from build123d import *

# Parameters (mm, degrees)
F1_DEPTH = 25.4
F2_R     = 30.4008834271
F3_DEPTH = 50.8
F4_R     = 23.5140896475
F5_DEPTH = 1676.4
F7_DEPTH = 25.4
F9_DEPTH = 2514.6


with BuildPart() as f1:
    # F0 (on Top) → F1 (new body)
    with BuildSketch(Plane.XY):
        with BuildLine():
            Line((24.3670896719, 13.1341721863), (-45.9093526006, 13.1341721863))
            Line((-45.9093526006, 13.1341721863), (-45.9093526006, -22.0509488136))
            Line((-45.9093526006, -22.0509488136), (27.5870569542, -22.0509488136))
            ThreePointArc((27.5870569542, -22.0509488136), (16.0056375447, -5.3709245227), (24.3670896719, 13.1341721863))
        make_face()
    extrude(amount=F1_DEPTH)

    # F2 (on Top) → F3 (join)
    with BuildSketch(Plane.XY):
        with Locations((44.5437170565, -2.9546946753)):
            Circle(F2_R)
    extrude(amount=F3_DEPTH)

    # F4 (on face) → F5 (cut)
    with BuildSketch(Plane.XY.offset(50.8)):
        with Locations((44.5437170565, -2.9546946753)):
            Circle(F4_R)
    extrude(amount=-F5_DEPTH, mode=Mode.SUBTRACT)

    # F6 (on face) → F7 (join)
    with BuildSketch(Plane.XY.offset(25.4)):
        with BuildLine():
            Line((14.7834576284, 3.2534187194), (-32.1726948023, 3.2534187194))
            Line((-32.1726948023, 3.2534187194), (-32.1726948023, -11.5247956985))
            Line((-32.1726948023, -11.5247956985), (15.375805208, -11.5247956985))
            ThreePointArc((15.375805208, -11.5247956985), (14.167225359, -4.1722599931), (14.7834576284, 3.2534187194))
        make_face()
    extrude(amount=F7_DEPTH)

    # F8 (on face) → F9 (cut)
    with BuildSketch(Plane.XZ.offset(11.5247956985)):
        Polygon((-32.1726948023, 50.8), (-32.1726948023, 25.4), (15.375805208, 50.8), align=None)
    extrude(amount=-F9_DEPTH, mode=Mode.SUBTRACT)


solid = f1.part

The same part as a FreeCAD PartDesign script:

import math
import FreeCAD as App
import Part
import Sketcher

V = App.Vector
Q = App.Units.Quantity

doc = App.newDocument("Part")
params = doc.addObject("Spreadsheet::Sheet", "Params")
for row, (alias, value) in enumerate([
    ("pad1_length", "1 in"),
    ("pad2_length", "2 in"),
    ("pocket1_length", "66 in"),
    ("pad3_length", "1 in"),
    ("sketch5_height", "1 in"),
    ("pocket2_length", "99 in"),
], start=1):
    params.set(f"A{row}", alias)
    params.set(f"B{row}", "=" + value)
    params.setAlias(f"B{row}", alias)

body = doc.addObject("PartDesign::Body", "Body")

# Sketch on XY plane
sketch1 = body.newObject("Sketcher::SketchObject", "Sketch")
sketch1.AttachmentSupport = (doc.getObject("XY_Plane"), [""])
sketch1.MapMode = "FlatFace"
sketch1.addGeometry(Part.LineSegment(V(24, 13, 0), V(-46, 13, 0)), False)
sketch1.addGeometry(Part.LineSegment(V(-46, 13, 0), V(-46, -22, 0)), False)
sketch1.addGeometry(Part.LineSegment(V(-46, -22, 0), V(28, -22, 0)), False)
sketch1.addGeometry(Part.ArcOfCircle(Part.Circle(V(37, -3, 0), V(0, 0, 1), 21), math.radians(126), math.radians(244)), False)
sketch1.addConstraint(Sketcher.Constraint("Coincident", 0, 2, 1, 1))
sketch1.addConstraint(Sketcher.Constraint("Coincident", 1, 2, 2, 1))
sketch1.addConstraint(Sketcher.Constraint("Coincident", 2, 2, 3, 2))
sketch1.addConstraint(Sketcher.Constraint("Coincident", 3, 1, 0, 1))
sketch1.addConstraint(Sketcher.Constraint("Horizontal", 0))
sketch1.addConstraint(Sketcher.Constraint("Vertical", 1))
sketch1.addConstraint(Sketcher.Constraint("Horizontal", 2))
sketch1.addConstraint(Sketcher.Constraint("Radius", 3, Q("20.590642 mm")))
sketch1.addConstraint(Sketcher.Constraint("DistanceX", 2, 1, 2, 2, Q("73.49641 mm")))
sketch1.addConstraint(Sketcher.Constraint("DistanceY", 1, 2, 1, 1, Q("35.185121 mm")))
sketch1.addConstraint(Sketcher.Constraint("DistanceX", 0, 2, 0, 1, Q("70.276442 mm")))
sketch1.addConstraint(Sketcher.Constraint("DistanceY", 1, 2, -1, 1, Q("22.050949 mm")))
sketch1.addConstraint(Sketcher.Constraint("DistanceX", -1, 1, 3, 1, Q("24.36709 mm")))
pad1 = body.newObject("PartDesign::Pad", "Pad")
pad1.Profile = sketch1
pad1.setExpression("Length", "Params.pad1_length")

# Sketch on XY plane
sketch2 = body.newObject("Sketcher::SketchObject", "Sketch001")
sketch2.AttachmentSupport = (doc.getObject("XY_Plane"), [""])
sketch2.MapMode = "FlatFace"
sketch2.addGeometry(Part.Circle(V(45, -3, 0), V(0, 0, 1), 30), False)
sketch2.addConstraint(Sketcher.Constraint("Diameter", 0, Q("60.801767 mm")))
sketch2.addConstraint(Sketcher.Constraint("DistanceX", -1, 1, 0, 3, Q("44.543717 mm")))
sketch2.addConstraint(Sketcher.Constraint("DistanceY", 0, 3, -1, 1, Q("2.954695 mm")))
pad2 = body.newObject("PartDesign::Pad", "Pad001")
pad2.Profile = sketch2
pad2.setExpression("Length", "Params.pad2_length")

# Sketch on XY plane
sketch3 = body.newObject("Sketcher::SketchObject", "Sketch002")
sketch3.AttachmentSupport = (doc.getObject("XY_Plane"), [""])
sketch3.MapMode = "FlatFace"
sketch3.AttachmentOffset = App.Placement(V(0, 0, 2 * 25.4), App.Rotation())
sketch3.addGeometry(Part.Circle(V(45, -3, 0), V(0, 0, 1), 24), False)
sketch3.addConstraint(Sketcher.Constraint("Diameter", 0, Q("47.028179 mm")))
sketch3.addConstraint(Sketcher.Constraint("DistanceX", -1, 1, 0, 3, Q("44.543717 mm")))
sketch3.addConstraint(Sketcher.Constraint("DistanceY", 0, 3, -1, 1, Q("2.954695 mm")))
pocket1 = body.newObject("PartDesign::Pocket", "Pocket")
pocket1.Profile = sketch3
pocket1.setExpression("Length", "Params.pocket1_length")

# Sketch on XY plane
sketch4 = body.newObject("Sketcher::SketchObject", "Sketch003")
sketch4.AttachmentSupport = (doc.getObject("XY_Plane"), [""])
sketch4.MapMode = "FlatFace"
sketch4.AttachmentOffset = App.Placement(V(0, 0, 1 * 25.4), App.Rotation())
sketch4.addGeometry(Part.LineSegment(V(15, 3, 0), V(-32, 3, 0)), False)
sketch4.addGeometry(Part.LineSegment(V(-32, 3, 0), V(-32, -12, 0)), False)
sketch4.addGeometry(Part.LineSegment(V(-32, -12, 0), V(15, -12, 0)), False)
sketch4.addGeometry(Part.ArcOfCircle(Part.Circle(V(45, -3, 0), V(0, 0, 1), 30), math.radians(168), math.radians(196)), False)
sketch4.addConstraint(Sketcher.Constraint("Coincident", 0, 2, 1, 1))
sketch4.addConstraint(Sketcher.Constraint("Coincident", 1, 2, 2, 1))
sketch4.addConstraint(Sketcher.Constraint("Coincident", 2, 2, 3, 2))
sketch4.addConstraint(Sketcher.Constraint("Coincident", 3, 1, 0, 1))
sketch4.addConstraint(Sketcher.Constraint("Horizontal", 0))
sketch4.addConstraint(Sketcher.Constraint("Vertical", 1))
sketch4.addConstraint(Sketcher.Constraint("Horizontal", 2))
sketch4.addConstraint(Sketcher.Constraint("DistanceX", 2, 1, 2, 2, Q("47.5485 mm")))
sketch4.addConstraint(Sketcher.Constraint("Radius", 3, Q("30.400883 mm")))
sketch4.addConstraint(Sketcher.Constraint("DistanceY", 1, 2, 3, 3, Q("8.570101 mm")))
sketch4.addConstraint(Sketcher.Constraint("DistanceX", 0, 2, 0, 1, Q("46.956152 mm")))
sketch4.addConstraint(Sketcher.Constraint("DistanceY", -1, 1, 0, 2, Q("3.253419 mm")))
sketch4.addConstraint(Sketcher.Constraint("DistanceX", -1, 1, 3, 3, Q("44.543717 mm")))
pad3 = body.newObject("PartDesign::Pad", "Pad002")
pad3.Profile = sketch4
pad3.setExpression("Length", "Params.pad3_length")

# Sketch on XZ plane
sketch5 = body.newObject("Sketcher::SketchObject", "Sketch004")
sketch5.AttachmentSupport = (doc.getObject("XZ_Plane"), [""])
sketch5.MapMode = "FlatFace"
sketch5.AttachmentOffset = App.Placement(V(0, 0, 11.524796), App.Rotation())
sketch5.addGeometry(Part.LineSegment(V(-32, 51, 0), V(-32, 25, 0)), False)
sketch5.addGeometry(Part.LineSegment(V(-32, 25, 0), V(15, 51, 0)), False)
sketch5.addGeometry(Part.LineSegment(V(15, 51, 0), V(-32, 51, 0)), False)
sketch5.addConstraint(Sketcher.Constraint("Coincident", 0, 2, 1, 1))
sketch5.addConstraint(Sketcher.Constraint("Coincident", 1, 2, 2, 1))
sketch5.addConstraint(Sketcher.Constraint("Coincident", 2, 2, 0, 1))
sketch5.addConstraint(Sketcher.Constraint("Vertical", 0))
sketch5.addConstraint(Sketcher.Constraint("Horizontal", 2))
sketch5.addConstraint(Sketcher.Constraint("DistanceY", 0, 2, 0, 1, Q("1 in")))
sketch5.addConstraint(Sketcher.Constraint("DistanceY", -1, 1, 0, 2, Q("1 in")))
sketch5.addConstraint(Sketcher.Constraint("DistanceX", 2, 2, 2, 1, Q("47.5485 mm")))
sketch5.addConstraint(Sketcher.Constraint("DistanceX", 0, 2, -1, 1, Q("32.172695 mm")))
sketch5.setExpression("Constraints[5]", "Params.sketch5_height")
pocket2 = body.newObject("PartDesign::Pocket", "Pocket001")
pocket2.Profile = sketch5
pocket2.setExpression("Length", "Params.pocket2_length")

doc.recompute()
